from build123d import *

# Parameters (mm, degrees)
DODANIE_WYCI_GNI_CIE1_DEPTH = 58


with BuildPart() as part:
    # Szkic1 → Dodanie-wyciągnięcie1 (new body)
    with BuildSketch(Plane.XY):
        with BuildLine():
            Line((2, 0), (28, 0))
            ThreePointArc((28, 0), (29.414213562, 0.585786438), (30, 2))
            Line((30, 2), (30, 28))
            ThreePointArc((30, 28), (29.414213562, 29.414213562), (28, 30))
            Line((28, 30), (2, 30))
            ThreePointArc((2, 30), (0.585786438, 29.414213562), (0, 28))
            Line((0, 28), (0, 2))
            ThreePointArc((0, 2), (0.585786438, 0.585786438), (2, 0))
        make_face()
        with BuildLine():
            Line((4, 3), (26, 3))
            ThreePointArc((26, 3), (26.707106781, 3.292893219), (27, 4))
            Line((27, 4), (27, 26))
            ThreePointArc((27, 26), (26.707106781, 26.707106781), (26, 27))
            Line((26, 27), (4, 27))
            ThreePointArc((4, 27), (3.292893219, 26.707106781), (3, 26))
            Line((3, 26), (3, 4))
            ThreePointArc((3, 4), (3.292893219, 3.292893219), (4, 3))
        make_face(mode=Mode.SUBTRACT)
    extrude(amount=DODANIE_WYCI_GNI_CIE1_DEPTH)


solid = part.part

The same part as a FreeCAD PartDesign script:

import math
import FreeCAD as App
import Part
import Sketcher
from FreeCAD import Vector
Q = App.Units.Quantity

doc = App.newDocument("Part")
body = doc.addObject("PartDesign::Body", "Body")

sketch1 = doc.addObject("Sketcher::SketchObject", "Sketch")
body.addObject(sketch1)
sketch1.AttachmentSupport = (doc.XY_Plane, [""])
sketch1.MapMode = "FlatFace"
sketch1.addGeometry(Part.LineSegment(Vector(2, 0, 0), Vector(28, 0, 0)), False)
sketch1.addGeometry(Part.ArcOfCircle(Part.Circle(Vector(28, 2, 0), Vector(0, 0, 1), 2), math.radians(-90), math.radians(0)), False)
sketch1.addGeometry(Part.LineSegment(Vector(30, 2, 0), Vector(30, 28, 0)), False)
sketch1.addGeometry(Part.ArcOfCircle(Part.Circle(Vector(28, 28, 0), Vector(0, 0, 1), 2), math.radians(0), math.radians(90)), False)
sketch1.addGeometry(Part.LineSegment(Vector(28, 30, 0), Vector(2, 30, 0)), False)
sketch1.addGeometry(Part.ArcOfCircle(Part.Circle(Vector(2, 28, 0), Vector(0, 0, 1), 2), math.radians(90), math.radians(180)), False)
sketch1.addGeometry(Part.LineSegment(Vector(0, 28, 0), Vector(0, 2, 0)), False)
sketch1.addGeometry(Part.ArcOfCircle(Part.Circle(Vector(2, 2, 0), Vector(0, 0, 1), 2), math.radians(-180), math.radians(-90)), False)
sketch1.addGeometry(Part.LineSegment(Vector(26, 3, 0), Vector(4, 3, 0)), False)
sketch1.addGeometry(Part.ArcOfCircle(Part.Circle(Vector(4, 4, 0), Vector(0, 0, 1), 1), math.radians(-180), math.radians(-90)), False)
sketch1.addGeometry(Part.LineSegment(Vector(3, 4, 0), Vector(3, 26, 0)), False)
sketch1.addGeometry(Part.ArcOfCircle(Part.Circle(Vector(4, 26, 0), Vector(0, 0, 1), 1), math.radians(90), math.radians(180)), False)
sketch1.addGeometry(Part.LineSegment(Vector(4, 27, 0), Vector(26, 27, 0)), False)
sketch1.addGeometry(Part.ArcOfCircle(Part.Circle(Vector(26, 26, 0), Vector(0, 0, 1), 1), math.radians(0), math.radians(90)), False)
sketch1.addGeometry(Part.LineSegment(Vector(27, 26, 0), Vector(27, 4, 0)), False)
sketch1.addGeometry(Part.ArcOfCircle(Part.Circle(Vector(26, 4, 0), Vector(0, 0, 1), 1), math.radians(-90), math.radians(0)), False)
sketch1.addConstraint(Sketcher.Constraint("Tangent", 0, 2, 1, 1))
sketch1.addConstraint(Sketcher.Constraint("Tangent", 1, 2, 2, 1))
sketch1.addConstraint(Sketcher.Constraint("Tangent", 2, 2, 3, 1))
sketch1.addConstraint(Sketcher.Constraint("Tangent", 3, 2, 4, 1))
sketch1.addConstraint(Sketcher.Constraint("Tangent", 4, 2, 5, 1))
sketch1.addConstraint(Sketcher.Constraint("Tangent", 5, 2, 6, 1))
sketch1.addConstraint(Sketcher.Constraint("Tangent", 6, 2, 7, 1))
sketch1.addConstraint(Sketcher.Constraint("Tangent", 7, 2, 0, 1))
sketch1.addConstraint(Sketcher.Constraint("Tangent", 8, 2, 9, 2))
sketch1.addConstraint(Sketcher.Constraint("Tangent", 9, 1, 10, 1))
sketch1.addConstraint(Sketcher.Constraint("Tangent", 10, 2, 11, 2))
sketch1.addConstraint(Sketcher.Constraint("Tangent", 11, 1, 12, 1))
sketch1.addConstraint(Sketcher.Constraint("Tangent", 12, 2, 13, 2))
sketch1.addConstraint(Sketcher.Constraint("Tangent", 13, 1, 14, 1))
sketch1.addConstraint(Sketcher.Constraint("Tangent", 14, 2, 15, 2))
sketch1.addConstraint(Sketcher.Constraint("Tangent", 15, 1, 8, 1))
sketch1.addConstraint(Sketcher.Constraint("Horizontal", 0))
sketch1.addConstraint(Sketcher.Constraint("Vertical", 2))
sketch1.addConstraint(Sketcher.Constraint("Horizontal", 4))
sketch1.addConstraint(Sketcher.Constraint("Vertical", 6))
sketch1.addConstraint(Sketcher.Constraint("Horizontal", 8))
sketch1.addConstraint(Sketcher.Constraint("Vertical", 10))
sketch1.addConstraint(Sketcher.Constraint("Horizontal", 12))
sketch1.addConstraint(Sketcher.Constraint("Vertical", 14))
sketch1.addConstraint(Sketcher.Constraint("Equal", 1, 3))
sketch1.addConstraint(Sketcher.Constraint("Equal", 3, 5))
sketch1.addConstraint(Sketcher.Constraint("Equal", 5, 7))
sketch1.addConstraint(Sketcher.Constraint("Equal", 9, 11))
sketch1.addConstraint(Sketcher.Constraint("Equal", 11, 13))
sketch1.addConstraint(Sketcher.Constraint("Equal", 13, 15))
sketch1.addConstraint(Sketcher.Constraint("PointOnObject", 0, 2, -1))
sketch1.addConstraint(Sketcher.Constraint("PointOnObject", 5, 2, -2))
sketch1.addConstraint(Sketcher.Constraint("Equal", 4, 2))
sketch1.addConstraint(Sketcher.Constraint("Equal", 12, 10))
sketch1.addConstraint(Sketcher.Constraint("Radius", 1, Q("2 mm")))
sketch1.addConstraint(Sketcher.Constraint("Radius", 9, Q("1 mm")))
sketch1.addConstraint(Sketcher.Constraint("DistanceX", 0, 1, 0, 2, Q("26 mm")))
sketch1.addConstraint(Sketcher.Constraint("DistanceX", 8, 2, 8, 1, Q("22 mm")))
sketch1.addConstraint(Sketcher.Constraint("DistanceX", -1, 1, 9, 3, Q("4 mm")))
sketch1.addConstraint(Sketcher.Constraint("DistanceY", -1, 1, 9, 3, Q("4 mm")))
pad1 = doc.addObject("PartDesign::Pad", "Pad")
body.addObject(pad1)
pad1.Profile = sketch1
pad1.Length = 58

doc.recompute()
